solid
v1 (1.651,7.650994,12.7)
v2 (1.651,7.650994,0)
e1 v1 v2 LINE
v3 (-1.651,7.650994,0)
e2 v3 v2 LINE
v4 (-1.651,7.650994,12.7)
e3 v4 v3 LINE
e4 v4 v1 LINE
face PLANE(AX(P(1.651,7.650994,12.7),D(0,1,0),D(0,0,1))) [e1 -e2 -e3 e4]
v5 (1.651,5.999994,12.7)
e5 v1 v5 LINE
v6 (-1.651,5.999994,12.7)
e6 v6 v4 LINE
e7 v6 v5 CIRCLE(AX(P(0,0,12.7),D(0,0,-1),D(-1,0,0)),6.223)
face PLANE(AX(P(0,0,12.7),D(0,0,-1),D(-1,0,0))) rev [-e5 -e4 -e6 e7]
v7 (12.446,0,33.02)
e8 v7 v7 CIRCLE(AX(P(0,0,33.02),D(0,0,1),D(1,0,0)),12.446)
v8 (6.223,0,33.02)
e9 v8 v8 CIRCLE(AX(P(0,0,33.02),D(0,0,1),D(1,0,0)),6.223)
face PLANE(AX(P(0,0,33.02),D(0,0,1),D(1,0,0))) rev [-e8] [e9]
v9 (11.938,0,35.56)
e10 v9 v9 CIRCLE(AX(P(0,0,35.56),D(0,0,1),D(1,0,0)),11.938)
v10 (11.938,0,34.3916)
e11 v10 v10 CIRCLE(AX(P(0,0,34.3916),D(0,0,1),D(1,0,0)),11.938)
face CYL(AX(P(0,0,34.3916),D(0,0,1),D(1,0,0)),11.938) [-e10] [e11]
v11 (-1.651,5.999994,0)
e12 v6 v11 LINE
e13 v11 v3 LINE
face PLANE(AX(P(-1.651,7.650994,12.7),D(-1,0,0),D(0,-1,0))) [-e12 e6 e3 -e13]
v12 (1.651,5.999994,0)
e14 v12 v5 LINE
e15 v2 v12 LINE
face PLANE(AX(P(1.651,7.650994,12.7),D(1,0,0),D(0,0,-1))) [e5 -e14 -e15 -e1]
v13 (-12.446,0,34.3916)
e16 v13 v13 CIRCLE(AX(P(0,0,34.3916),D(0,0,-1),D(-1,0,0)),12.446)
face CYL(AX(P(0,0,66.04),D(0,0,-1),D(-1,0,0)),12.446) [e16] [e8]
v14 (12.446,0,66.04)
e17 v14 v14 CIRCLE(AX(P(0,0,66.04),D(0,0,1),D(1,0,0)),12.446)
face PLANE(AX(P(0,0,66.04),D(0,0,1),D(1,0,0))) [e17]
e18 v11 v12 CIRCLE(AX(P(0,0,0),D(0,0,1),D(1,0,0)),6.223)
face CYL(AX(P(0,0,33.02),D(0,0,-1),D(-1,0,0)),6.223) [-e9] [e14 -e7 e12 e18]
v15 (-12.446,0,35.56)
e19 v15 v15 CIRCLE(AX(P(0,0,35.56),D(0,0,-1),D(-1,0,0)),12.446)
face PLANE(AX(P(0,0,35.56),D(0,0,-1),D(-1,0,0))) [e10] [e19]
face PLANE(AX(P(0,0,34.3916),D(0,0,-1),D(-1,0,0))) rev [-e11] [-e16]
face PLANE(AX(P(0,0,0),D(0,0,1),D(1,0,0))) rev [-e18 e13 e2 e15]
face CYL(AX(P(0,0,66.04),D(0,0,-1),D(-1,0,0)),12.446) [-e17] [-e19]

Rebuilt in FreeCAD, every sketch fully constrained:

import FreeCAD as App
import Part
import Sketcher
from FreeCAD import Vector
Q = App.Units.Quantity


def add_polygon(sketch, points):
    """Adds a closed chain of lines whose ends are joined by coincident constraints."""
    first, n = sketch.GeometryCount, len(points)
    for a, b in zip(points, points[1:] + points[:1]):
        sketch.addGeometry(Part.LineSegment(App.Vector(*a, 0), App.Vector(*b, 0)), False)
    for i in range(n):
        sketch.addConstraint(Sketcher.Constraint("Coincident", first + i, 2, first + (i + 1) % n, 1))

doc = App.newDocument("Part")
body = doc.addObject("PartDesign::Body", "Body")

sketch1 = body.newObject("Sketcher::SketchObject", "Sketch")
sketch1.AttachmentSupport = (doc.getObject("XY_Plane"), [""])
sketch1.MapMode = "FlatFace"
sketch1.addGeometry(Part.Circle(Vector(0, 0, 0), Vector(0, 0, 1), 6.223), False)
sketch1.addConstraint(Sketcher.Constraint("Coincident", 0, 3, -1, 1))
sketch1.addConstraint(Sketcher.Constraint("Diameter", 0, Q("0.49 in")))
pad1 = body.newObject("PartDesign::Pad", "Pad")
pad1.Profile = sketch1
pad1.Length = Q("1.3 in")

sketch2 = body.newObject("Sketcher::SketchObject", "Sketch001")
sketch2.AttachmentSupport = (doc.getObject("XY_Plane"), [""])
sketch2.MapMode = "FlatFace"
sketch2.AttachmentOffset = App.Placement(Vector(0, 0, 1.3 * 25.4), App.Rotation())
sketch2.addGeometry(Part.Circle(Vector(0, 0, 0), Vector(0, 0, 1), 12.446), False)
sketch2.addConstraint(Sketcher.Constraint("Coincident", 0, 3, -1, 1))
sketch2.addConstraint(Sketcher.Constraint("Diameter", 0, Q("0.98 in")))
pad2 = body.newObject("PartDesign::Pad", "Pad001")
pad2.Profile = sketch2
pad2.Length = Q("1.3 in")

sketch3 = body.newObject("Sketcher::SketchObject", "Sketch002")
sketch3.AttachmentSupport = (doc.getObject("XY_Plane"), [""])
sketch3.MapMode = "FlatFace"
add_polygon(sketch3, [(1.651, 7.650994), (1.651, 4.348994), (-1.651, 4.348994), (-1.651, 7.650994)])
sketch3.addConstraint(Sketcher.Constraint("Vertical", 0))
sketch3.addConstraint(Sketcher.Constraint("Horizontal", 1))
sketch3.addConstraint(Sketcher.Constraint("Vertical", 2))
sketch3.addConstraint(Sketcher.Constraint("Horizontal", 3))
sketch3.addConstraint(Sketcher.Constraint("Equal", 3, 0))
sketch3.addConstraint(Sketcher.Constraint("DistanceX", 1, 2, 1, 1, Q("0.13 in")))
sketch3.addConstraint(Sketcher.Constraint("DistanceX", -1, 1, 0, 2, Q("0.065 in")))
sketch3.addConstraint(Sketcher.Constraint("DistanceY", -1, 1, 0, 2, Q("4.348994 mm")))
pad3 = body.newObject("PartDesign::Pad", "Pad002")
pad3.Profile = sketch3
pad3.Length = Q("0.5 in")

sketch4 = body.newObject("Sketcher::SketchObject", "Sketch003")
sketch4.AttachmentSupport = (doc.getObject("XY_Plane"), [""])
sketch4.MapMode = "FlatFace"
sketch4.AttachmentOffset = App.Placement(Vector(0, 0, 1.4 * 25.4), App.Rotation())
add_polygon(sketch4, [(-17.203352, 15.291869), (-17.203352, -16.384145), (20.976671, -17.277826), (19.785096, 16.682039)])
sketch4.addGeometry(Part.Circle(Vector(0, 0, 0), Vector(0, 0, 1), 11.938), False)
sketch4.addConstraint(Sketcher.Constraint("Vertical", 0))
sketch4.addConstraint(Sketcher.Constraint("Coincident", 4, 3, -1, 1))
sketch4.addConstraint(Sketcher.Constraint("Diameter", 4, Q("0.94 in")))
sketch4.addConstraint(Sketcher.Constraint("Distance", 1, Q("38.190481 mm")))
sketch4.addConstraint(Sketcher.Constraint("DistanceY", 0, 2, 0, 1, Q("31.676014 mm")))
sketch4.addConstraint(Sketcher.Constraint("DistanceX", -1, 1, 1, 2, Q("20.976671 mm")))
sketch4.addConstraint(Sketcher.Constraint("DistanceY", -1, 1, 2, 2, Q("16.682039 mm")))
sketch4.addConstraint(Sketcher.Constraint("DistanceY", -1, 1, 3, 2, Q("15.291869 mm")))
sketch4.addConstraint(Sketcher.Constraint("DistanceY", 1, 2, 0, 2, Q("0.893681 mm")))
sketch4.addConstraint(Sketcher.Constraint("DistanceX", 0, 2, 2, 2, Q("36.988449 mm")))
pocket1 = body.newObject("PartDesign::Pocket", "Pocket")
pocket1.Profile = sketch4
pocket1.Length = Q("0.046 in")

doc.recompute()
